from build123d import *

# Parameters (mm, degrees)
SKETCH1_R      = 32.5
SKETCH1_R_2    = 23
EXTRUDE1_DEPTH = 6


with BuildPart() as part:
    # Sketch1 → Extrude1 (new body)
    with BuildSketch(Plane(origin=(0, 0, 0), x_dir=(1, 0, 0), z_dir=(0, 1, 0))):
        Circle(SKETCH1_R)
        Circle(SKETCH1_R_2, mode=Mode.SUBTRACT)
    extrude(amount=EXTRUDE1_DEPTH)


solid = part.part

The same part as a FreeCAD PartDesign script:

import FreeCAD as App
import Part
import Sketcher

doc = App.newDocument("Part")
params = doc.addObject("Spreadsheet::Sheet", "Params")
for row, (alias, value) in enumerate([
    ("sketch1_diameter", "65 mm"),
    ("sketch1_diameter2", "46 mm"),
    ("pad1_length", "6 mm"),
], start=1):
    params.set(f"A{row}", alias)
    params.set(f"B{row}", "=" + value)
    params.setAlias(f"B{row}", alias)

body = doc.addObject("PartDesign::Body", "Body")

# Sketch on XZ plane
sketch1 = body.newObject("Sketcher::SketchObject", "Sketch")
sketch1.AttachmentSupport = (doc.getObject("XZ_Plane"), [""])
sketch1.MapMode = "FlatFace"
sketch1.addGeometry([
    Part.Circle(App.Vector(0, 0, 0), App.Vector(0, 0, 1), 32),
    Part.Circle(App.Vector(0, 0, 0), App.Vector(0, 0, 1), 23),
], False)
sketch1.addConstraint([
    Sketcher.Constraint("Coincident", 0, 3, -1, 1),
    Sketcher.Constraint("Coincident", 1, 3, -1, 1),
    Sketcher.Constraint("Diameter", 0, 65.0),
    Sketcher.Constraint("Diameter", 1, 46.0),
])
sketch1.setExpression("Constraints[2]", "Params.sketch1_diameter")
sketch1.setExpression("Constraints[3]", "Params.sketch1_diameter2")
pad1 = body.newObject("PartDesign::Pad", "Pad")
pad1.Profile = sketch1
pad1.setExpression("Length", "Params.pad1_length")
pad1.Reversed = True

doc.recompute()
